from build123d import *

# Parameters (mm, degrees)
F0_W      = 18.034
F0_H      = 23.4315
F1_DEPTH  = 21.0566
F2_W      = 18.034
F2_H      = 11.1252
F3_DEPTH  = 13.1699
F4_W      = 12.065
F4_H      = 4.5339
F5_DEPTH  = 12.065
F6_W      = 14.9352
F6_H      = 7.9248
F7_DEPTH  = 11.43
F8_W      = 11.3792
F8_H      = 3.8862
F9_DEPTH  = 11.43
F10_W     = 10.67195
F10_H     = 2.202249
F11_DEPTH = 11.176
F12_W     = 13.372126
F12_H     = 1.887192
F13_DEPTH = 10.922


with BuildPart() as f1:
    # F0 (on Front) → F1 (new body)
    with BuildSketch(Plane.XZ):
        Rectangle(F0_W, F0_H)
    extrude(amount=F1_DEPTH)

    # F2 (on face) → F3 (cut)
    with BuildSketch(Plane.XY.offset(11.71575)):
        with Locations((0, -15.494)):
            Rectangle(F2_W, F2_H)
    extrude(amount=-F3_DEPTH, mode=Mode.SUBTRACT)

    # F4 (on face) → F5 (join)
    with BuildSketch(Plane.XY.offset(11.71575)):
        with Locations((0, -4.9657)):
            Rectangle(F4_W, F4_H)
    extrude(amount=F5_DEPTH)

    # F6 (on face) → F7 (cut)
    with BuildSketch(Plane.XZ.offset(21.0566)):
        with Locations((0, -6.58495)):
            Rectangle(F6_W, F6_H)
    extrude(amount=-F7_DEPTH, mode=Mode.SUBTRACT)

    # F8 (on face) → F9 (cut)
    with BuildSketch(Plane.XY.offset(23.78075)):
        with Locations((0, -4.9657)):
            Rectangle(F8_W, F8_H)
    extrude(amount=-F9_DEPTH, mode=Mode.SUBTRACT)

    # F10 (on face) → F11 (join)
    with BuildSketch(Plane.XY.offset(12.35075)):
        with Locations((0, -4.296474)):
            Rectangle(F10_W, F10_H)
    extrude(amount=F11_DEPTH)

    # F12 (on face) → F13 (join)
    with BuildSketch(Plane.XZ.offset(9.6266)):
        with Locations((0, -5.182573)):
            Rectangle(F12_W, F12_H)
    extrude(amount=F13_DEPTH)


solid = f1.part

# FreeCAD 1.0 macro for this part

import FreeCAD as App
import Part
import Sketcher

V = App.Vector
Q = App.Units.Quantity


def add_polygon(sketch, points):
    """Adds a closed chain of lines whose ends are joined by coincident constraints."""
    first, n = sketch.GeometryCount, len(points)
    for a, b in zip(points, points[1:] + points[:1]):
        sketch.addGeometry(Part.LineSegment(App.Vector(*a, 0), App.Vector(*b, 0)), False)
    for i in range(n):
        sketch.addConstraint(Sketcher.Constraint("Coincident", first + i, 2, first + (i + 1) % n, 1))

doc = App.newDocument("Part")
body = doc.addObject("PartDesign::Body", "Body")

# Sketch on XZ plane
sketch1 = body.newObject("Sketcher::SketchObject", "Sketch")
sketch1.AttachmentSupport = (doc.getObject("XZ_Plane"), [""])
sketch1.MapMode = "FlatFace"
add_polygon(sketch1, [(-9.017, 11.71575), (-9.017, -11.71575), (9.017, -11.71575), (9.017, 11.71575)])  # lines 0-3
sketch1.addConstraint([
    Sketcher.Constraint("Vertical", 0),
    Sketcher.Constraint("Horizontal", 1),
    Sketcher.Constraint("Vertical", 2),
    Sketcher.Constraint("Horizontal", 3),
    Sketcher.Constraint("Symmetric", 0, 2, 2, 2, -1, 1),
    Sketcher.Constraint("DistanceX", 1, 1, 1, 2, Q("0.71 in")),
    Sketcher.Constraint("DistanceY", 0, 2, 0, 1, Q("0.9225 in")),
])
pad1 = body.newObject("PartDesign::Pad", "Pad")
pad1.Profile = sketch1
pad1.Length = Q("0.829 in")

# Sketch on XY plane
sketch2 = body.newObject("Sketcher::SketchObject", "Sketch001")
sketch2.AttachmentSupport = (doc.getObject("XY_Plane"), [""])
sketch2.MapMode = "FlatFace"
sketch2.AttachmentOffset = App.Placement(V(0, 0, 11.71575), App.Rotation())
add_polygon(sketch2, [(-9.017, -9.9314), (-9.017, -21.0566), (9.017, -21.0566), (9.017, -9.9314)])  # lines 0-3
sketch2.addConstraint([
    Sketcher.Constraint("Vertical", 0),
    Sketcher.Constraint("Horizontal", 1),
    Sketcher.Constraint("Vertical", 2),
    Sketcher.Constraint("Horizontal", 3),
    Sketcher.Constraint("DistanceX", 1, 1, 1, 2, Q("0.71 in")),
    Sketcher.Constraint("DistanceY", 0, 2, 0, 1, Q("0.438 in")),
    Sketcher.Constraint("DistanceX", 0, 2, -1, 1, Q("0.355 in")),
    Sketcher.Constraint("DistanceY", 0, 2, -1, 1, Q("0.829 in")),
])
pocket1 = body.newObject("PartDesign::Pocket", "Pocket")
pocket1.Profile = sketch2
pocket1.Length = Q("0.5185 in")

# Sketch on XY plane
sketch3 = body.newObject("Sketcher::SketchObject", "Sketch002")
sketch3.AttachmentSupport = (doc.getObject("XY_Plane"), [""])
sketch3.MapMode = "FlatFace"
sketch3.AttachmentOffset = App.Placement(V(0, 0, 11.71575), App.Rotation())
add_polygon(sketch3, [(-6.0325, -2.69875), (-6.0325, -7.23265), (6.0325, -7.23265), (6.0325, -2.69875)])  # lines 0-3
sketch3.addConstraint([
    Sketcher.Constraint("Vertical", 0),
    Sketcher.Constraint("Horizontal", 1),
    Sketcher.Constraint("Vertical", 2),
    Sketcher.Constraint("Horizontal", 3),
    Sketcher.Constraint("DistanceX", 1, 1, 1, 2, Q("0.475 in")),
    Sketcher.Constraint("DistanceY", 0, 2, 0, 1, Q("0.1785 in")),
    Sketcher.Constraint("DistanceX", 0, 2, -1, 1, Q("0.2375 in")),
    Sketcher.Constraint("DistanceY", 0, 2, -1, 1, Q("7.23265 mm")),
])
pad2 = body.newObject("PartDesign::Pad", "Pad001")
pad2.Profile = sketch3
pad2.Length = Q("0.475 in")

# Sketch on XZ plane
sketch4 = body.newObject("Sketcher::SketchObject", "Sketch003")
sketch4.AttachmentSupport = (doc.getObject("XZ_Plane"), [""])
sketch4.MapMode = "FlatFace"
sketch4.AttachmentOffset = App.Placement(V(0, 0, 0.829 * 25.4), App.Rotation())
add_polygon(sketch4, [(-7.4676, -2.62255), (-7.4676, -10.54735), (7.4676, -10.54735), (7.4676, -2.62255)])  # lines 0-3
sketch4.addConstraint([
    Sketcher.Constraint("Vertical", 0),
    Sketcher.Constraint("Horizontal", 1),
    Sketcher.Constraint("Vertical", 2),
    Sketcher.Constraint("Horizontal", 3),
    Sketcher.Constraint("DistanceX", 1, 1, 1, 2, Q("0.588 in")),
    Sketcher.Constraint("DistanceY", 0, 2, 0, 1, Q("0.312 in")),
    Sketcher.Constraint("DistanceX", 0, 2, -1, 1, Q("0.294 in")),
    Sketcher.Constraint("DistanceY", 0, 2, -1, 1, Q("10.54735 mm")),
])
pocket2 = body.newObject("PartDesign::Pocket", "Pocket001")
pocket2.Profile = sketch4
pocket2.Length = Q("0.45 in")

# Sketch on XY plane
sketch5 = body.newObject("Sketcher::SketchObject", "Sketch004")
sketch5.AttachmentSupport = (doc.getObject("XY_Plane"), [""])
sketch5.MapMode = "FlatFace"
sketch5.AttachmentOffset = App.Placement(V(0, 0, 23.78075), App.Rotation())
add_polygon(sketch5, [(-5.6896, -3.0226), (-5.6896, -6.9088), (5.6896, -6.9088), (5.6896, -3.0226)])  # lines 0-3
sketch5.addConstraint([
    Sketcher.Constraint("Vertical", 0),
    Sketcher.Constraint("Horizontal", 1),
    Sketcher.Constraint("Vertical", 2),
    Sketcher.Constraint("Horizontal", 3),
    Sketcher.Constraint("DistanceX", 1, 1, 1, 2, Q("0.448 in")),
    Sketcher.Constraint("DistanceY", 0, 2, 0, 1, Q("0.153 in")),
    Sketcher.Constraint("DistanceX", 0, 2, -1, 1, Q("0.224 in")),
    Sketcher.Constraint("DistanceY", 0, 2, -1, 1, Q("0.272 in")),
])
pocket3 = body.newObject("PartDesign::Pocket", "Pocket002")
pocket3.Profile = sketch5
pocket3.Length = Q("0.45 in")

# Sketch on XY plane
sketch6 = body.newObject("Sketcher::SketchObject", "Sketch005")
sketch6.AttachmentSupport = (doc.getObject("XY_Plane"), [""])
sketch6.MapMode = "FlatFace"
sketch6.AttachmentOffset = App.Placement(V(0, 0, 12.35075), App.Rotation())
add_polygon(sketch6, [(-5.335975, -3.195349), (-5.335975, -5.397598), (5.335975, -5.397598), (5.335975, -3.195349)])  # lines 0-3
sketch6.addConstraint([
    Sketcher.Constraint("Vertical", 0),
    Sketcher.Constraint("Horizontal", 1),
    Sketcher.Constraint("Vertical", 2),
    Sketcher.Constraint("Horizontal", 3),
    Sketcher.Constraint("DistanceX", 1, 1, 1, 2, Q("10.67195 mm")),
    Sketcher.Constraint("DistanceY", 0, 2, 0, 1, Q("2.202249 mm")),
    Sketcher.Constraint("DistanceY", 0, 2, -1, 1, Q("5.397598 mm")),
    Sketcher.Constraint("DistanceX", 0, 2, -1, 1, Q("5.335975 mm")),
])
pad3 = body.newObject("PartDesign::Pad", "Pad002")
pad3.Profile = sketch6
pad3.Length = Q("0.44 in")

# Sketch on XZ plane
sketch7 = body.newObject("Sketcher::SketchObject", "Sketch006")
sketch7.AttachmentSupport = (doc.getObject("XZ_Plane"), [""])
sketch7.MapMode = "FlatFace"
sketch7.AttachmentOffset = App.Placement(V(0, 0, 0.379 * 25.4), App.Rotation())
add_polygon(sketch7, [(-6.686063, -4.238977), (-6.686063, -6.126169), (6.686063, -6.126169), (6.686063, -4.238977)])  # lines 0-3
sketch7.addConstraint([
    Sketcher.Constraint("Vertical", 0),
    Sketcher.Constraint("Horizontal", 1),
    Sketcher.Constraint("Vertical", 2),
    Sketcher.Constraint("Horizontal", 3),
    Sketcher.Constraint("DistanceY", 0, 2, 0, 1, Q("1.887192 mm")),
    Sketcher.Constraint("DistanceX", 1, 1, 1, 2, Q("13.372126 mm")),
    Sketcher.Constraint("DistanceY", 0, 2, -1, 1, Q("6.126169 mm")),
    Sketcher.Constraint("DistanceX", 0, 2, -1, 1, Q("6.686063 mm")),
])
pad4 = body.newObject("PartDesign::Pad", "Pad003")
pad4.Profile = sketch7
pad4.Length = Q("0.43 in")

doc.recompute()
